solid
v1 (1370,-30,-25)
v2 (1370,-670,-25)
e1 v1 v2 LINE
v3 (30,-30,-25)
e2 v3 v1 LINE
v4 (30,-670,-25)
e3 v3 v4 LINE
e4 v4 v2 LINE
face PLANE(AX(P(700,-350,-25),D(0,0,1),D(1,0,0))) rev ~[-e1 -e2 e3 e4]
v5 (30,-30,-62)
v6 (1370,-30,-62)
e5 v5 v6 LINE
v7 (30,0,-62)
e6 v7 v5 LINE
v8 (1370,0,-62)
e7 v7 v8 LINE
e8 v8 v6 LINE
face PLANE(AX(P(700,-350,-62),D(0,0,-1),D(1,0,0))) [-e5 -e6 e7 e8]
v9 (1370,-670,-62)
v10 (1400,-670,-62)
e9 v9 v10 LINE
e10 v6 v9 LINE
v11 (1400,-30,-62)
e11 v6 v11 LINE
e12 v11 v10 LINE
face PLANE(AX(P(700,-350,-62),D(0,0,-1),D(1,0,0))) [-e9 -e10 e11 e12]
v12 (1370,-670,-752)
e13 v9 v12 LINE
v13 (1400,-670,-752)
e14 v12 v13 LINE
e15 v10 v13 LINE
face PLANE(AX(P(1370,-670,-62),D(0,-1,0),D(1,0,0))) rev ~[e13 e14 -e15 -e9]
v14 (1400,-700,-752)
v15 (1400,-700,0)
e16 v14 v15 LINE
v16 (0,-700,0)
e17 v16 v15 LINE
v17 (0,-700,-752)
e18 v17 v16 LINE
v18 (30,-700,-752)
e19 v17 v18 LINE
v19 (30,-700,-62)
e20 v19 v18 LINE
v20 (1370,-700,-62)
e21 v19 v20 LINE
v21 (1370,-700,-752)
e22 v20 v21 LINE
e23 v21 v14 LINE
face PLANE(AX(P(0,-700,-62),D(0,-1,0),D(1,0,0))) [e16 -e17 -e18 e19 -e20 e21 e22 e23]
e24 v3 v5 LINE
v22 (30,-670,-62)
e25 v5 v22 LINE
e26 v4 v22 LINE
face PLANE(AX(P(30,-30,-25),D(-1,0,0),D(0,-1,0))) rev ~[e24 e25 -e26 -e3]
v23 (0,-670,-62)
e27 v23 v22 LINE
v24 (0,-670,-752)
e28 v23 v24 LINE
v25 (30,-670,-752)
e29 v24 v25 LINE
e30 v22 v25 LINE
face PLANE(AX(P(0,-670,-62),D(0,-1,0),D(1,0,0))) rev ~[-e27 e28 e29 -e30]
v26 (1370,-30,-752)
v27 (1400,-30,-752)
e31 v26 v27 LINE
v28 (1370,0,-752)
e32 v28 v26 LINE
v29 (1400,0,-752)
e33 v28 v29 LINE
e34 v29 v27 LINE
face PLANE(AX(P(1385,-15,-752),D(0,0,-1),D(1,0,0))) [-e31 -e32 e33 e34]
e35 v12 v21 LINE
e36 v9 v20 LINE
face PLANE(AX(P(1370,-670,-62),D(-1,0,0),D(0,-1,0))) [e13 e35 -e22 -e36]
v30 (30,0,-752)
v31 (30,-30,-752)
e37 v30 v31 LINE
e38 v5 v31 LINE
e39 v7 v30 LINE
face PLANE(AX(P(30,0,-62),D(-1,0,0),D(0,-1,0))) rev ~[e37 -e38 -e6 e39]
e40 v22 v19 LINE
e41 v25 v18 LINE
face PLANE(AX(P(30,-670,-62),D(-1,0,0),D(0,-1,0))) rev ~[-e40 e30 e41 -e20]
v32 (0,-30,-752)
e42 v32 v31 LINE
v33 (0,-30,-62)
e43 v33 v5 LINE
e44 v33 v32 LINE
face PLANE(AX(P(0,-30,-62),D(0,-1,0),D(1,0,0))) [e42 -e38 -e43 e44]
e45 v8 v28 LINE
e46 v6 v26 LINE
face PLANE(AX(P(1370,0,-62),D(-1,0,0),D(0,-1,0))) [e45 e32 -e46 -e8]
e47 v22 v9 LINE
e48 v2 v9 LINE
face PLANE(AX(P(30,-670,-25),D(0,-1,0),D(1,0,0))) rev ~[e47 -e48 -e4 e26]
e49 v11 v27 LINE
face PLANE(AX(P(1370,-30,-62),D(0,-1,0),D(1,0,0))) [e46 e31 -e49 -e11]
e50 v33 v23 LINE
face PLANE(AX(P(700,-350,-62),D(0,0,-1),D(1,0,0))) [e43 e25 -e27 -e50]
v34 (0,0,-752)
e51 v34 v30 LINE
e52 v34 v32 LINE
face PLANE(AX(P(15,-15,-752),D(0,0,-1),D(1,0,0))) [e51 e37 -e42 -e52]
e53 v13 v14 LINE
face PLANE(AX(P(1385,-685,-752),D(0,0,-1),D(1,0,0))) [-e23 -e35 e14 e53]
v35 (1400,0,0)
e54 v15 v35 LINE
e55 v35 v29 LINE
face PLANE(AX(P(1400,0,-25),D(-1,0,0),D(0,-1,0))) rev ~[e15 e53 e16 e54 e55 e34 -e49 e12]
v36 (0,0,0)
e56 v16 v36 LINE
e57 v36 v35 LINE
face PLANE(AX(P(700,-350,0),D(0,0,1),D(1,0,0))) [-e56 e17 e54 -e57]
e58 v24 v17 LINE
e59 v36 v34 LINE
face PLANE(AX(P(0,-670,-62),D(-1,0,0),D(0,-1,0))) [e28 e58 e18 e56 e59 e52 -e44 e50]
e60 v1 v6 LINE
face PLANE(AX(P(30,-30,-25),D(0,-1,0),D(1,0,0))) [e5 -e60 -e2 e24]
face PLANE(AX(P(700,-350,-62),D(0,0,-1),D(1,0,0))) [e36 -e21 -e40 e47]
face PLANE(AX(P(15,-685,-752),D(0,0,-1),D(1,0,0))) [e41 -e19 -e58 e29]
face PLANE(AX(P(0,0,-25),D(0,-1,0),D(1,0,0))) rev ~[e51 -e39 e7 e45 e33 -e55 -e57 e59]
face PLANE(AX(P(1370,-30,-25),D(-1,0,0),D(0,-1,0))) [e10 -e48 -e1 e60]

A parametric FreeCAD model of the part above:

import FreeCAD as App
import Part
import Sketcher

V = App.Vector


def add_polygon(sketch, points):
    """Adds a closed chain of lines whose ends are joined by coincident constraints."""
    first, n = sketch.GeometryCount, len(points)
    for a, b in zip(points, points[1:] + points[:1]):
        sketch.addGeometry(Part.LineSegment(App.Vector(*a, 0), App.Vector(*b, 0)), False)
    for i in range(n):
        sketch.addConstraint(Sketcher.Constraint("Coincident", first + i, 2, first + (i + 1) % n, 1))

doc = App.newDocument("Part")
body = doc.addObject("PartDesign::Body", "Body")

sketch1 = body.newObject("Sketcher::SketchObject", "Sketch")
sketch1.AttachmentSupport = (doc.getObject("XY_Plane"), [""])
sketch1.MapMode = "FlatFace"
add_polygon(sketch1, [(0, 0), (0, -700), (1400, -700), (1400, 0)])
sketch1.addConstraint([
    Sketcher.Constraint("Vertical", 0),
    Sketcher.Constraint("Horizontal", 1),
    Sketcher.Constraint("Vertical", 2),
    Sketcher.Constraint("Horizontal", 3),
    Sketcher.Constraint("Coincident", 3, 2, -1, 1),
    Sketcher.Constraint("DistanceX", 1, 1, 1, 2, 1400.0),
    Sketcher.Constraint("DistanceY", 0, 2, 0, 1, 700.0),
])
pad1 = body.newObject("PartDesign::Pad", "Pad")
pad1.Profile = sketch1
pad1.Length = 25
pad1.Reversed = True

sketch2 = body.newObject("Sketcher::SketchObject", "Sketch001")
sketch2.AttachmentSupport = (doc.getObject("XY_Plane"), [""])
sketch2.MapMode = "FlatFace"
sketch2.AttachmentOffset = App.Placement(V(0, 0, -25), App.Rotation())
add_polygon(sketch2, [(0, -700), (0, 0), (1400, 0), (1400, -700)])
add_polygon(sketch2, [(1370, -30), (30, -30), (30, -670), (1370, -670)])
sketch2.addConstraint([
    Sketcher.Constraint("Vertical", 0),
    Sketcher.Constraint("Horizontal", 1),
    Sketcher.Constraint("Vertical", 2),
    Sketcher.Constraint("Horizontal", 3),
    Sketcher.Constraint("Horizontal", 4),
    Sketcher.Constraint("Vertical", 5),
    Sketcher.Constraint("Horizontal", 6),
    Sketcher.Constraint("Vertical", 7),
    Sketcher.Constraint("Coincident", 0, 2, -1, 1),
    Sketcher.Constraint("DistanceX", 1, 1, 1, 2, 1400.0),
    Sketcher.Constraint("DistanceX", 4, 2, 4, 1, 1340.0),
    Sketcher.Constraint("DistanceY", 0, 1, 0, 2, 700.0),
    Sketcher.Constraint("DistanceY", 5, 2, 5, 1, 640.0),
    Sketcher.Constraint("DistanceX", -1, 1, 4, 2, 30.0),
    Sketcher.Constraint("DistanceY", 4, 2, -1, 1, 30.0),
])
pad2 = body.newObject("PartDesign::Pad", "Pad001")
pad2.Profile = sketch2
pad2.Length = 37
pad2.Reversed = True

sketch3 = body.newObject("Sketcher::SketchObject", "Sketch002")
sketch3.AttachmentSupport = (doc.getObject("XY_Plane"), [""])
sketch3.MapMode = "FlatFace"
sketch3.AttachmentOffset = App.Placement(V(0, 0, -62), App.Rotation())
add_polygon(sketch3, [(0, -700), (0, -670), (30, -670), (30, -700)])
add_polygon(sketch3, [(0, -30), (0, 0), (30, 0), (30, -30)])
add_polygon(sketch3, [(1370, -700), (1370, -670), (1400, -670), (1400, -700)])
add_polygon(sketch3, [(1370, -30), (1370, 0), (1400, 0), (1400, -30)])
sketch3.addConstraint([
    Sketcher.Constraint("Vertical", 0),
    Sketcher.Constraint("Horizontal", 1),
    Sketcher.Constraint("Vertical", 2),
    Sketcher.Constraint("Horizontal", 3),
    Sketcher.Constraint("Vertical", 4),
    Sketcher.Constraint("Horizontal", 5),
    Sketcher.Constraint("Vertical", 6),
    Sketcher.Constraint("Horizontal", 7),
    Sketcher.Constraint("Vertical", 8),
    Sketcher.Constraint("Horizontal", 9),
    Sketcher.Constraint("Vertical", 10),
    Sketcher.Constraint("Horizontal", 11),
    Sketcher.Constraint("Vertical", 12),
    Sketcher.Constraint("Horizontal", 13),
    Sketcher.Constraint("Vertical", 14),
    Sketcher.Constraint("Horizontal", 15),
    Sketcher.Constraint("Coincident", 4, 2, -1, 1),
    Sketcher.Constraint("PointOnObject", 0, 2, -2),
    Sketcher.Constraint("PointOnObject", 12, 2, -1),
    Sketcher.Constraint("Horizontal", 1, 2, 8, 2),
    Sketcher.Constraint("Horizontal", 3, 2, 10, 2),
    Sketcher.Constraint("Horizontal", 7, 2, 14, 2),
    Sketcher.Constraint("Vertical", 2, 2, 5, 2),
    Sketcher.Constraint("Vertical", 11, 2, 12, 2),
    Sketcher.Constraint("Vertical", 10, 2, 13, 2),
    Sketcher.Constraint("Equal", 7, 9),
    Sketcher.Constraint("Equal", 15, 0),
    Sketcher.Constraint("Equal", 2, 4),
    Sketcher.Constraint("DistanceX", 1, 1, 1, 2, 30.0),
    Sketcher.Constraint("DistanceY", 0, 2, -1, 1, 670.0),
    Sketcher.Constraint("DistanceX", -1, 1, 8, 2, 1370.0),
])
pad3 = body.newObject("PartDesign::Pad", "Pad002")
pad3.Profile = sketch3
pad3.Length = 690
pad3.Reversed = True

doc.recompute()
